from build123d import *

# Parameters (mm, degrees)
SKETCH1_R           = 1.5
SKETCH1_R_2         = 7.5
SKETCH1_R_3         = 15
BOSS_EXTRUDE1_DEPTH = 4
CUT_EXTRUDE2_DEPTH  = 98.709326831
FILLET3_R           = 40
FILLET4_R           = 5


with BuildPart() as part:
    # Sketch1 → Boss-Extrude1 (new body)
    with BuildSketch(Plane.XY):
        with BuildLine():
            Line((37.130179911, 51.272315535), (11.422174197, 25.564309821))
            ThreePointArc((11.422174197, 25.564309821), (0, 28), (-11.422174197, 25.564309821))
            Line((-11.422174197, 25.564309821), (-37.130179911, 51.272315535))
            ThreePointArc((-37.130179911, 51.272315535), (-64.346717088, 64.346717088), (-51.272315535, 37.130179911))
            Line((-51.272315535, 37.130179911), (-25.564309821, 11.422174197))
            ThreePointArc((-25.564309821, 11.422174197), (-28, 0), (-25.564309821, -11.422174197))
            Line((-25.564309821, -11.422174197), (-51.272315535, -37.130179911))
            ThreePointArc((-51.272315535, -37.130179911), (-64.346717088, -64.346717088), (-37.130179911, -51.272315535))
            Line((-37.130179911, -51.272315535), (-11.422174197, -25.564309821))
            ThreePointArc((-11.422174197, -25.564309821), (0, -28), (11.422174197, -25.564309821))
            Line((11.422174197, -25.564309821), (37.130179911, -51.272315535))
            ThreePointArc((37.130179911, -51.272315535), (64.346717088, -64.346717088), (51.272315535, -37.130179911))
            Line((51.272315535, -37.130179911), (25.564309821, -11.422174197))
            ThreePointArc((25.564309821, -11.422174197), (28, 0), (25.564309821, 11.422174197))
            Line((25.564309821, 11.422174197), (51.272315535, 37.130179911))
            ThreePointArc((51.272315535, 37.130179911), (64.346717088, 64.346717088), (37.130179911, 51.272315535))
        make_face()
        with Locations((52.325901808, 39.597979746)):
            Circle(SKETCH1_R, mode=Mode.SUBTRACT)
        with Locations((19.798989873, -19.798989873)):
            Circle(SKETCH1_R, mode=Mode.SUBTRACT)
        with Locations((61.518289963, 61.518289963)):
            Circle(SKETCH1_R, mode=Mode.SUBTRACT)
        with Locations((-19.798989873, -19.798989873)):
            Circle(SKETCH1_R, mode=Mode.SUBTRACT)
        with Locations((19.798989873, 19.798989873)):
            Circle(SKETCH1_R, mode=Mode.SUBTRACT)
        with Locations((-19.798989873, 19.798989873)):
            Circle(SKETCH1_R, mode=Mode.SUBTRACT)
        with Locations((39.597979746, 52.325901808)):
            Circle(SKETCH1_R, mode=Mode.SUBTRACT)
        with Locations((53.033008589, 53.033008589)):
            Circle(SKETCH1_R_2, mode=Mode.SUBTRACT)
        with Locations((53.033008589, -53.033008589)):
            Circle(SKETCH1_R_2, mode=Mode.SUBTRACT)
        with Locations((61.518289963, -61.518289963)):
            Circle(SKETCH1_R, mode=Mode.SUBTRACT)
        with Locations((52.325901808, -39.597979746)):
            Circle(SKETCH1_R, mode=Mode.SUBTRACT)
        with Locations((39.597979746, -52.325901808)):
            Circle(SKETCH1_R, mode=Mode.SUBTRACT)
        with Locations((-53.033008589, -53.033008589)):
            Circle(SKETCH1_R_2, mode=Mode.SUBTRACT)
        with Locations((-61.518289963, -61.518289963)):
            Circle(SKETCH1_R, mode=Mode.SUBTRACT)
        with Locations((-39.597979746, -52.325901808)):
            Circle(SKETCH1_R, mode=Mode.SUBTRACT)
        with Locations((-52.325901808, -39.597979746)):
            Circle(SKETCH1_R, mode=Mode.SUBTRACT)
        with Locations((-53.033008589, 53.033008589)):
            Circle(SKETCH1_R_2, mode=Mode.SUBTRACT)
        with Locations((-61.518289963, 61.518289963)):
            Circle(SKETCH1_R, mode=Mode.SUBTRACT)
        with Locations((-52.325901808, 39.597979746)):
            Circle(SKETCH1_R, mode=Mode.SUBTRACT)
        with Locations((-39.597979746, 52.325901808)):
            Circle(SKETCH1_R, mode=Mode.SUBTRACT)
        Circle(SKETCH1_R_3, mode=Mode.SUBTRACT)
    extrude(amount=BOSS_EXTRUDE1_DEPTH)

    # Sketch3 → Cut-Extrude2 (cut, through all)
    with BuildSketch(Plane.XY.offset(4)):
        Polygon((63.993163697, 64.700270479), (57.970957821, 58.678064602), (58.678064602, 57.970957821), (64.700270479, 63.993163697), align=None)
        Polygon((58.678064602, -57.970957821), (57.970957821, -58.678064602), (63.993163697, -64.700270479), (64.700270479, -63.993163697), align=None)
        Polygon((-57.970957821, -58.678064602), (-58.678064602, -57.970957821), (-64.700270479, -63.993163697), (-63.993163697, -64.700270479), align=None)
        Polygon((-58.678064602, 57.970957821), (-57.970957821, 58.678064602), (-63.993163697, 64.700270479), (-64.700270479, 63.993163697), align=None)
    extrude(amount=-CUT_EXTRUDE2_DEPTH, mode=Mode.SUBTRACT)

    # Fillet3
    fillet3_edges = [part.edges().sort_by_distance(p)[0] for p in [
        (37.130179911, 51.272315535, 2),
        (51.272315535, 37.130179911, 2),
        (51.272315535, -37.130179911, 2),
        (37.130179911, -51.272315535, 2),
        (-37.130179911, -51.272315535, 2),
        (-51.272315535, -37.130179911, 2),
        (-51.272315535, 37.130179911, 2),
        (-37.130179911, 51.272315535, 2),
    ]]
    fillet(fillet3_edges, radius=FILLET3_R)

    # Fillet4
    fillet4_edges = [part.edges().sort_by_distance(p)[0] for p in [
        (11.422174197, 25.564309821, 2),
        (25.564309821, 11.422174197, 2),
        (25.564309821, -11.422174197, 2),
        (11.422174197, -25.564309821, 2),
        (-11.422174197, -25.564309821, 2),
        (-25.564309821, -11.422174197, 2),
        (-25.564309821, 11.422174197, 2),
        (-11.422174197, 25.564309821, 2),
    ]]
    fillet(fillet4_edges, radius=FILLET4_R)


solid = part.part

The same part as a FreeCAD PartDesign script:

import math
import FreeCAD as App
import Part
import Sketcher

V = App.Vector


def edges_at(feature, points):
    """Names of the edges that pass closest to the given points."""
    edges = feature.Shape.Edges
    near = lambda p: min(range(len(edges)), key=lambda i: edges[i].distToShape(Part.Vertex(*p))[0])
    return sorted({f"Edge{near(p) + 1}" for p in points})

doc = App.newDocument("Part")
body = doc.addObject("PartDesign::Body", "Body")

# Sketch on XY plane
sketch1 = body.newObject("Sketcher::SketchObject", "Sketch")
sketch1.AttachmentSupport = (doc.getObject("XY_Plane"), [""])
sketch1.MapMode = "FlatFace"
sketch1.addGeometry([
    Part.LineSegment(V(37.13018, 51.272316, 0), V(11.422174, 25.56431, 0)),  # 0
    Part.ArcOfCircle(Part.Circle(V(0, 0, 0), V(0, 0, 1), 28), math.radians(65.924832), math.radians(114.075168)),  # 1
    Part.LineSegment(V(-11.422174, 25.56431, 0), V(-37.13018, 51.272316, 0)),  # 2
    Part.ArcOfCircle(Part.Circle(V(-53.033009, 53.033009, 0), V(0, 0, 1), 16), math.radians(-6.317813), math.radians(276.317813)),  # 3
    Part.LineSegment(V(-51.272316, 37.13018, 0), V(-25.56431, 11.422174, 0)),  # 4
    Part.ArcOfCircle(Part.Circle(V(0, 0, 0), V(0, 0, 1), 28), math.radians(155.924832), math.radians(204.075168)),  # 5
    Part.LineSegment(V(-25.56431, -11.422174, 0), V(-51.272316, -37.13018, 0)),  # 6
    Part.ArcOfCircle(Part.Circle(V(-53.033009, -53.033009, 0), V(0, 0, 1), 16), math.radians(83.682187), math.radians(366.317813)),  # 7
    Part.LineSegment(V(-37.13018, -51.272316, 0), V(-11.422174, -25.56431, 0)),  # 8
    Part.ArcOfCircle(Part.Circle(V(0, 0, 0), V(0, 0, 1), 28), math.radians(-114.075168), math.radians(-65.924832)),  # 9
    Part.LineSegment(V(11.422174, -25.56431, 0), V(37.13018, -51.272316, 0)),  # 10
    Part.ArcOfCircle(Part.Circle(V(53.033009, -53.033009, 0), V(0, 0, 1), 16), math.radians(173.682187), math.radians(456.317813)),  # 11
    Part.LineSegment(V(51.272316, -37.13018, 0), V(25.56431, -11.422174, 0)),  # 12
    Part.ArcOfCircle(Part.Circle(V(0, 0, 0), V(0, 0, 1), 28), math.radians(-24.075168), math.radians(24.075168)),  # 13
    Part.LineSegment(V(25.56431, 11.422174, 0), V(51.272316, 37.13018, 0)),  # 14
    Part.ArcOfCircle(Part.Circle(V(53.033009, 53.033009, 0), V(0, 0, 1), 16), math.radians(-96.317813), math.radians(186.317813)),  # 15
    Part.Circle(V(-61.51829, -61.51829, 0), V(0, 0, 1), 1.5),  # 16
    Part.Circle(V(-53.033009, -53.033009, 0), V(0, 0, 1), 7.5),  # 17
    Part.Circle(V(-39.59798, -52.325902, 0), V(0, 0, 1), 1.5),  # 18
    Part.Circle(V(-52.325902, -39.59798, 0), V(0, 0, 1), 1.5),  # 19
    Part.Circle(V(-19.79899, -19.79899, 0), V(0, 0, 1), 1.5),  # 20
    Part.Circle(V(39.59798, -52.325902, 0), V(0, 0, 1), 1.5),  # 21
    Part.Circle(V(61.51829, -61.51829, 0), V(0, 0, 1), 1.5),  # 22
    Part.Circle(V(53.033009, -53.033009, 0), V(0, 0, 1), 7.5),  # 23
    Part.Circle(V(52.325902, -39.59798, 0), V(0, 0, 1), 1.5),  # 24
    Part.Circle(V(19.79899, -19.79899, 0), V(0, 0, 1), 1.5),  # 25
    Part.Circle(V(-19.79899, 19.79899, 0), V(0, 0, 1), 1.5),  # 26
    Part.Circle(V(-52.325902, 39.59798, 0), V(0, 0, 1), 1.5),  # 27
    Part.Circle(V(-53.033009, 53.033009, 0), V(0, 0, 1), 7.5),  # 28
    Part.Circle(V(-61.51829, 61.51829, 0), V(0, 0, 1), 1.5),  # 29
    Part.Circle(V(-39.59798, 52.325902, 0), V(0, 0, 1), 1.5),  # 30
    Part.Circle(V(0, 0, 0), V(0, 0, 1), 15),  # 31
    Part.Circle(V(19.79899, 19.79899, 0), V(0, 0, 1), 1.5),  # 32
    Part.Circle(V(52.325902, 39.59798, 0), V(0, 0, 1), 1.5),  # 33
    Part.Circle(V(39.59798, 52.325902, 0), V(0, 0, 1), 1.5),  # 34
    Part.Circle(V(53.033009, 53.033009, 0), V(0, 0, 1), 7.5),  # 35
    Part.Circle(V(61.51829, 61.51829, 0), V(0, 0, 1), 1.5),  # 36
], False)
sketch1.addConstraint([
    Sketcher.Constraint("Coincident", 0, 2, 1, 1),
    Sketcher.Constraint("Coincident", 1, 2, 2, 1),
    Sketcher.Constraint("Coincident", 2, 2, 3, 1),
    Sketcher.Constraint("Coincident", 3, 2, 4, 1),
    Sketcher.Constraint("Coincident", 4, 2, 5, 1),
    Sketcher.Constraint("Coincident", 5, 2, 6, 1),
    Sketcher.Constraint("Coincident", 6, 2, 7, 1),
    Sketcher.Constraint("Coincident", 7, 2, 8, 1),
    Sketcher.Constraint("Coincident", 8, 2, 9, 1),
    Sketcher.Constraint("Coincident", 9, 2, 10, 1),
    Sketcher.Constraint("Coincident", 10, 2, 11, 1),
    Sketcher.Constraint("Coincident", 11, 2, 12, 1),
    Sketcher.Constraint("Coincident", 12, 2, 13, 1),
    Sketcher.Constraint("Coincident", 13, 2, 14, 1),
    Sketcher.Constraint("Coincident", 14, 2, 15, 1),
    Sketcher.Constraint("Coincident", 15, 2, 0, 1),
    Sketcher.Constraint("Coincident", 1, 3, -1, 1),
    Sketcher.Constraint("Coincident", 5, 3, -1, 1),
    Sketcher.Constraint("Coincident", 9, 3, -1, 1),
    Sketcher.Constraint("Coincident", 13, 3, -1, 1),
    Sketcher.Constraint("Coincident", 31, 3, -1, 1),
    Sketcher.Constraint("Coincident", 17, 3, 7, 3),
    Sketcher.Constraint("Coincident", 23, 3, 11, 3),
    Sketcher.Constraint("Coincident", 28, 3, 3, 3),
    Sketcher.Constraint("Coincident", 35, 3, 15, 3),
    Sketcher.Constraint("Equal", 1, 5),
    Sketcher.Constraint("Equal", 3, 7),
    Sketcher.Constraint("Equal", 5, 9),
    Sketcher.Constraint("Equal", 7, 11),
    Sketcher.Constraint("Equal", 9, 13),
    Sketcher.Constraint("Equal", 11, 15),
    Sketcher.Constraint("Equal", 16, 18),
    Sketcher.Constraint("Equal", 18, 19),
    Sketcher.Constraint("Equal", 19, 20),
    Sketcher.Constraint("Equal", 20, 21),
    Sketcher.Constraint("Equal", 21, 22),
    Sketcher.Constraint("Equal", 17, 23),
    Sketcher.Constraint("Equal", 22, 24),
    Sketcher.Constraint("Equal", 24, 25),
    Sketcher.Constraint("Equal", 25, 26),
    Sketcher.Constraint("Equal", 26, 27),
    Sketcher.Constraint("Equal", 23, 28),
    Sketcher.Constraint("Equal", 27, 29),
    Sketcher.Constraint("Equal", 29, 30),
    Sketcher.Constraint("Equal", 30, 32),
    Sketcher.Constraint("Equal", 32, 33),
    Sketcher.Constraint("Equal", 33, 34),
    Sketcher.Constraint("Equal", 28, 35),
    Sketcher.Constraint("Equal", 34, 36),
    Sketcher.Constraint("Symmetric", 3, 3, 11, 3, -1, 1),
    Sketcher.Constraint("Symmetric", 7, 3, 15, 3, -1, 1),
    Sketcher.Constraint("Symmetric", 25, 3, 26, 3, -1, 1),
    Sketcher.Constraint("Symmetric", 24, 3, 27, 3, -1, 1),
    Sketcher.Constraint("Symmetric", 22, 3, 29, 3, -1, 1),
    Sketcher.Constraint("Symmetric", 21, 3, 30, 3, -1, 1),
    Sketcher.Constraint("Symmetric", 20, 3, 32, 3, -1, 1),
    Sketcher.Constraint("Symmetric", 19, 3, 33, 3, -1, 1),
    Sketcher.Constraint("Symmetric", 18, 3, 34, 3, -1, 1),
    Sketcher.Constraint("Symmetric", 16, 3, 36, 3, -1, 1),
    Sketcher.Constraint("Symmetric", 7, 3, 11, 3, -2),
    Sketcher.Constraint("Symmetric", 18, 3, 21, 3, -2),
    Sketcher.Constraint("Symmetric", 16, 3, 22, 3, -2),
    Sketcher.Constraint("Symmetric", 19, 3, 24, 3, -2),
    Sketcher.Constraint("Symmetric", 20, 3, 25, 3, -2),
    Sketcher.Constraint("Perpendicular", 0, 2),
    Sketcher.Constraint("Parallel", 2, 4),
    Sketcher.Constraint("Perpendicular", 4, 6),
    Sketcher.Constraint("Parallel", 6, 8),
    Sketcher.Constraint("Perpendicular", 8, 10),
    Sketcher.Constraint("Parallel", 10, 12),
    Sketcher.Constraint("Perpendicular", 12, 14),
    Sketcher.Constraint("Horizontal", 0, 2, 1, 2),
    Sketcher.Constraint("Horizontal", 8, 2, 9, 2),
    Sketcher.Constraint("Horizontal", 7, 2, 10, 2),
    Sketcher.Constraint("Horizontal", 6, 2, 11, 2),
    Sketcher.Constraint("Horizontal", 4, 2, 13, 2),
    Sketcher.Constraint("Vertical", 4, 2, 5, 2),
    Sketcher.Constraint("Vertical", 2, 2, 7, 2),
    Sketcher.Constraint("Equal", 2, 4),
    Sketcher.Constraint("Diameter", 16, 3.0),
    Sketcher.Constraint("Diameter", 17, 15.0),
    Sketcher.Constraint("Diameter", 31, 30.0),
    Sketcher.Constraint("Radius", 1, 28.0),
    Sketcher.Constraint("Radius", 3, 16.0),
    Sketcher.Constraint("DistanceY", 18, 3, -1, 1, 52.325902),
    Sketcher.Constraint("DistanceX", 19, 3, -1, 1, 52.325902),
    Sketcher.Constraint("DistanceX", 29, 3, 26, 3, 41.7193),
    Sketcher.Constraint("DistanceY", 26, 3, 29, 3, 41.7193),
    Sketcher.Constraint("DistanceX", 30, 3, 2, 2, 2.4678),
    Sketcher.Constraint("DistanceY", 3, 2, 27, 3, 2.4678),
    Sketcher.Constraint("Distance", 0, 36.35661),
    Sketcher.Constraint("DistanceX", 3, 3, -1, 1, 53.033009),
    Sketcher.Constraint("DistanceY", -1, 1, 3, 3, 53.033009),
    Sketcher.Constraint("DistanceX", 16, 3, -1, 1, 61.51829),
    Sketcher.Constraint("DistanceY", 16, 3, -1, 1, 61.51829),
])
pad1 = body.newObject("PartDesign::Pad", "Pad")
pad1.Profile = sketch1
pad1.Length = 4

# Sketch on XY plane
sketch2 = body.newObject("Sketcher::SketchObject", "Sketch001")
sketch2.AttachmentSupport = (doc.getObject("XY_Plane"), [""])
sketch2.MapMode = "FlatFace"
sketch2.AttachmentOffset = App.Placement(V(0, 0, 4), App.Rotation())
sketch2.addGeometry([
    Part.LineSegment(V(63.993164, 64.70027, 0), V(57.970958, 58.678065, 0)),  # 0
    Part.LineSegment(V(57.970958, 58.678065, 0), V(58.678065, 57.970958, 0)),  # 1
    Part.LineSegment(V(58.678065, 57.970958, 0), V(64.70027, 63.993164, 0)),  # 2
    Part.LineSegment(V(64.70027, 63.993164, 0), V(63.993164, 64.70027, 0)),  # 3
    Part.LineSegment(V(58.678065, -57.970958, 0), V(57.970958, -58.678065, 0)),  # 4
    Part.LineSegment(V(57.970958, -58.678065, 0), V(63.993164, -64.70027, 0)),  # 5
    Part.LineSegment(V(63.993164, -64.70027, 0), V(64.70027, -63.993164, 0)),  # 6
    Part.LineSegment(V(64.70027, -63.993164, 0), V(58.678065, -57.970958, 0)),  # 7
    Part.LineSegment(V(-57.970958, -58.678065, 0), V(-58.678065, -57.970958, 0)),  # 8
    Part.LineSegment(V(-58.678065, -57.970958, 0), V(-64.70027, -63.993164, 0)),  # 9
    Part.LineSegment(V(-64.70027, -63.993164, 0), V(-63.993164, -64.70027, 0)),  # 10
    Part.LineSegment(V(-63.993164, -64.70027, 0), V(-57.970958, -58.678065, 0)),  # 11
    Part.LineSegment(V(-58.678065, 57.970958, 0), V(-57.970958, 58.678065, 0)),  # 12
    Part.LineSegment(V(-57.970958, 58.678065, 0), V(-63.993164, 64.70027, 0)),  # 13
    Part.LineSegment(V(-63.993164, 64.70027, 0), V(-64.70027, 63.993164, 0)),  # 14
    Part.LineSegment(V(-64.70027, 63.993164, 0), V(-58.678065, 57.970958, 0)),  # 15
], False)
sketch2.addConstraint([
    Sketcher.Constraint("Coincident", 0, 2, 1, 1),
    Sketcher.Constraint("Coincident", 1, 2, 2, 1),
    Sketcher.Constraint("Coincident", 2, 2, 3, 1),
    Sketcher.Constraint("Coincident", 3, 2, 0, 1),
    Sketcher.Constraint("Coincident", 4, 2, 5, 1),
    Sketcher.Constraint("Coincident", 5, 2, 6, 1),
    Sketcher.Constraint("Coincident", 6, 2, 7, 1),
    Sketcher.Constraint("Coincident", 7, 2, 4, 1),
    Sketcher.Constraint("Coincident", 8, 2, 9, 1),
    Sketcher.Constraint("Coincident", 9, 2, 10, 1),
    Sketcher.Constraint("Coincident", 10, 2, 11, 1),
    Sketcher.Constraint("Coincident", 11, 2, 8, 1),
    Sketcher.Constraint("Coincident", 12, 2, 13, 1),
    Sketcher.Constraint("Coincident", 13, 2, 14, 1),
    Sketcher.Constraint("Coincident", 14, 2, 15, 1),
    Sketcher.Constraint("Coincident", 15, 2, 12, 1),
    Sketcher.Constraint("Symmetric", 1, 2, 8, 2, -1, 1),
    Sketcher.Constraint("Symmetric", 2, 2, 9, 2, -1, 1),
    Sketcher.Constraint("Symmetric", 3, 2, 10, 2, -1, 1),
    Sketcher.Constraint("Symmetric", 0, 2, 11, 2, -1, 1),
    Sketcher.Constraint("Symmetric", 4, 2, 12, 2, -1, 1),
    Sketcher.Constraint("Symmetric", 5, 2, 13, 2, -1, 1),
    Sketcher.Constraint("Symmetric", 6, 2, 14, 2, -1, 1),
    Sketcher.Constraint("Symmetric", 7, 2, 15, 2, -1, 1),
    Sketcher.Constraint("Symmetric", 7, 2, 8, 2, -2),
    Sketcher.Constraint("Symmetric", 6, 2, 9, 2, -2),
    Sketcher.Constraint("Symmetric", 5, 2, 10, 2, -2),
    Sketcher.Constraint("Symmetric", 4, 2, 11, 2, -2),
    Sketcher.Constraint("Perpendicular", 0, 1),
    Sketcher.Constraint("Perpendicular", 1, 2),
    Sketcher.Constraint("Perpendicular", 2, 3),
    Sketcher.Constraint("Perpendicular", 3, 4),
    Sketcher.Constraint("Distance", 1, 1.0),
    Sketcher.Constraint("DistanceY", 0, 2, 2, 2, 5.315099),
    Sketcher.Constraint("DistanceX", -1, 1, 2, 2, 64.70027),
    Sketcher.Constraint("DistanceY", -1, 1, 3, 2, 64.70027),
])
pocket1 = body.newObject("PartDesign::Pocket", "Pocket")
pocket1.Profile = sketch2
pocket1.Type = "ThroughAll"
doc.recompute()

fillet = body.newObject("PartDesign::Fillet", "Fillet")
fillet.Base = (pocket1, edges_at(pocket1, [
    (37.13, 51.272, 2),
    (51.272, 37.13, 2),
    (51.272, -37.13, 2),
    (37.13, -51.272, 2),
    (-37.13, -51.272, 2),
    (-51.272, -37.13, 2),
    (-51.272, 37.13, 2),
    (-37.13, 51.272, 2),
]))
fillet.Radius = 40
doc.recompute()

fillet2 = body.newObject("PartDesign::Fillet", "Fillet001")
fillet2.Base = (fillet, edges_at(fillet, [
    (11.422, 25.564, 2),
    (25.564, 11.422, 2),
    (25.564, -11.422, 2),
    (11.422, -25.564, 2),
    (-11.422, -25.564, 2),
    (-25.564, -11.422, 2),
    (-25.564, 11.422, 2),
    (-11.422, 25.564, 2),
]))
fillet2.Radius = 5

doc.recompute()
